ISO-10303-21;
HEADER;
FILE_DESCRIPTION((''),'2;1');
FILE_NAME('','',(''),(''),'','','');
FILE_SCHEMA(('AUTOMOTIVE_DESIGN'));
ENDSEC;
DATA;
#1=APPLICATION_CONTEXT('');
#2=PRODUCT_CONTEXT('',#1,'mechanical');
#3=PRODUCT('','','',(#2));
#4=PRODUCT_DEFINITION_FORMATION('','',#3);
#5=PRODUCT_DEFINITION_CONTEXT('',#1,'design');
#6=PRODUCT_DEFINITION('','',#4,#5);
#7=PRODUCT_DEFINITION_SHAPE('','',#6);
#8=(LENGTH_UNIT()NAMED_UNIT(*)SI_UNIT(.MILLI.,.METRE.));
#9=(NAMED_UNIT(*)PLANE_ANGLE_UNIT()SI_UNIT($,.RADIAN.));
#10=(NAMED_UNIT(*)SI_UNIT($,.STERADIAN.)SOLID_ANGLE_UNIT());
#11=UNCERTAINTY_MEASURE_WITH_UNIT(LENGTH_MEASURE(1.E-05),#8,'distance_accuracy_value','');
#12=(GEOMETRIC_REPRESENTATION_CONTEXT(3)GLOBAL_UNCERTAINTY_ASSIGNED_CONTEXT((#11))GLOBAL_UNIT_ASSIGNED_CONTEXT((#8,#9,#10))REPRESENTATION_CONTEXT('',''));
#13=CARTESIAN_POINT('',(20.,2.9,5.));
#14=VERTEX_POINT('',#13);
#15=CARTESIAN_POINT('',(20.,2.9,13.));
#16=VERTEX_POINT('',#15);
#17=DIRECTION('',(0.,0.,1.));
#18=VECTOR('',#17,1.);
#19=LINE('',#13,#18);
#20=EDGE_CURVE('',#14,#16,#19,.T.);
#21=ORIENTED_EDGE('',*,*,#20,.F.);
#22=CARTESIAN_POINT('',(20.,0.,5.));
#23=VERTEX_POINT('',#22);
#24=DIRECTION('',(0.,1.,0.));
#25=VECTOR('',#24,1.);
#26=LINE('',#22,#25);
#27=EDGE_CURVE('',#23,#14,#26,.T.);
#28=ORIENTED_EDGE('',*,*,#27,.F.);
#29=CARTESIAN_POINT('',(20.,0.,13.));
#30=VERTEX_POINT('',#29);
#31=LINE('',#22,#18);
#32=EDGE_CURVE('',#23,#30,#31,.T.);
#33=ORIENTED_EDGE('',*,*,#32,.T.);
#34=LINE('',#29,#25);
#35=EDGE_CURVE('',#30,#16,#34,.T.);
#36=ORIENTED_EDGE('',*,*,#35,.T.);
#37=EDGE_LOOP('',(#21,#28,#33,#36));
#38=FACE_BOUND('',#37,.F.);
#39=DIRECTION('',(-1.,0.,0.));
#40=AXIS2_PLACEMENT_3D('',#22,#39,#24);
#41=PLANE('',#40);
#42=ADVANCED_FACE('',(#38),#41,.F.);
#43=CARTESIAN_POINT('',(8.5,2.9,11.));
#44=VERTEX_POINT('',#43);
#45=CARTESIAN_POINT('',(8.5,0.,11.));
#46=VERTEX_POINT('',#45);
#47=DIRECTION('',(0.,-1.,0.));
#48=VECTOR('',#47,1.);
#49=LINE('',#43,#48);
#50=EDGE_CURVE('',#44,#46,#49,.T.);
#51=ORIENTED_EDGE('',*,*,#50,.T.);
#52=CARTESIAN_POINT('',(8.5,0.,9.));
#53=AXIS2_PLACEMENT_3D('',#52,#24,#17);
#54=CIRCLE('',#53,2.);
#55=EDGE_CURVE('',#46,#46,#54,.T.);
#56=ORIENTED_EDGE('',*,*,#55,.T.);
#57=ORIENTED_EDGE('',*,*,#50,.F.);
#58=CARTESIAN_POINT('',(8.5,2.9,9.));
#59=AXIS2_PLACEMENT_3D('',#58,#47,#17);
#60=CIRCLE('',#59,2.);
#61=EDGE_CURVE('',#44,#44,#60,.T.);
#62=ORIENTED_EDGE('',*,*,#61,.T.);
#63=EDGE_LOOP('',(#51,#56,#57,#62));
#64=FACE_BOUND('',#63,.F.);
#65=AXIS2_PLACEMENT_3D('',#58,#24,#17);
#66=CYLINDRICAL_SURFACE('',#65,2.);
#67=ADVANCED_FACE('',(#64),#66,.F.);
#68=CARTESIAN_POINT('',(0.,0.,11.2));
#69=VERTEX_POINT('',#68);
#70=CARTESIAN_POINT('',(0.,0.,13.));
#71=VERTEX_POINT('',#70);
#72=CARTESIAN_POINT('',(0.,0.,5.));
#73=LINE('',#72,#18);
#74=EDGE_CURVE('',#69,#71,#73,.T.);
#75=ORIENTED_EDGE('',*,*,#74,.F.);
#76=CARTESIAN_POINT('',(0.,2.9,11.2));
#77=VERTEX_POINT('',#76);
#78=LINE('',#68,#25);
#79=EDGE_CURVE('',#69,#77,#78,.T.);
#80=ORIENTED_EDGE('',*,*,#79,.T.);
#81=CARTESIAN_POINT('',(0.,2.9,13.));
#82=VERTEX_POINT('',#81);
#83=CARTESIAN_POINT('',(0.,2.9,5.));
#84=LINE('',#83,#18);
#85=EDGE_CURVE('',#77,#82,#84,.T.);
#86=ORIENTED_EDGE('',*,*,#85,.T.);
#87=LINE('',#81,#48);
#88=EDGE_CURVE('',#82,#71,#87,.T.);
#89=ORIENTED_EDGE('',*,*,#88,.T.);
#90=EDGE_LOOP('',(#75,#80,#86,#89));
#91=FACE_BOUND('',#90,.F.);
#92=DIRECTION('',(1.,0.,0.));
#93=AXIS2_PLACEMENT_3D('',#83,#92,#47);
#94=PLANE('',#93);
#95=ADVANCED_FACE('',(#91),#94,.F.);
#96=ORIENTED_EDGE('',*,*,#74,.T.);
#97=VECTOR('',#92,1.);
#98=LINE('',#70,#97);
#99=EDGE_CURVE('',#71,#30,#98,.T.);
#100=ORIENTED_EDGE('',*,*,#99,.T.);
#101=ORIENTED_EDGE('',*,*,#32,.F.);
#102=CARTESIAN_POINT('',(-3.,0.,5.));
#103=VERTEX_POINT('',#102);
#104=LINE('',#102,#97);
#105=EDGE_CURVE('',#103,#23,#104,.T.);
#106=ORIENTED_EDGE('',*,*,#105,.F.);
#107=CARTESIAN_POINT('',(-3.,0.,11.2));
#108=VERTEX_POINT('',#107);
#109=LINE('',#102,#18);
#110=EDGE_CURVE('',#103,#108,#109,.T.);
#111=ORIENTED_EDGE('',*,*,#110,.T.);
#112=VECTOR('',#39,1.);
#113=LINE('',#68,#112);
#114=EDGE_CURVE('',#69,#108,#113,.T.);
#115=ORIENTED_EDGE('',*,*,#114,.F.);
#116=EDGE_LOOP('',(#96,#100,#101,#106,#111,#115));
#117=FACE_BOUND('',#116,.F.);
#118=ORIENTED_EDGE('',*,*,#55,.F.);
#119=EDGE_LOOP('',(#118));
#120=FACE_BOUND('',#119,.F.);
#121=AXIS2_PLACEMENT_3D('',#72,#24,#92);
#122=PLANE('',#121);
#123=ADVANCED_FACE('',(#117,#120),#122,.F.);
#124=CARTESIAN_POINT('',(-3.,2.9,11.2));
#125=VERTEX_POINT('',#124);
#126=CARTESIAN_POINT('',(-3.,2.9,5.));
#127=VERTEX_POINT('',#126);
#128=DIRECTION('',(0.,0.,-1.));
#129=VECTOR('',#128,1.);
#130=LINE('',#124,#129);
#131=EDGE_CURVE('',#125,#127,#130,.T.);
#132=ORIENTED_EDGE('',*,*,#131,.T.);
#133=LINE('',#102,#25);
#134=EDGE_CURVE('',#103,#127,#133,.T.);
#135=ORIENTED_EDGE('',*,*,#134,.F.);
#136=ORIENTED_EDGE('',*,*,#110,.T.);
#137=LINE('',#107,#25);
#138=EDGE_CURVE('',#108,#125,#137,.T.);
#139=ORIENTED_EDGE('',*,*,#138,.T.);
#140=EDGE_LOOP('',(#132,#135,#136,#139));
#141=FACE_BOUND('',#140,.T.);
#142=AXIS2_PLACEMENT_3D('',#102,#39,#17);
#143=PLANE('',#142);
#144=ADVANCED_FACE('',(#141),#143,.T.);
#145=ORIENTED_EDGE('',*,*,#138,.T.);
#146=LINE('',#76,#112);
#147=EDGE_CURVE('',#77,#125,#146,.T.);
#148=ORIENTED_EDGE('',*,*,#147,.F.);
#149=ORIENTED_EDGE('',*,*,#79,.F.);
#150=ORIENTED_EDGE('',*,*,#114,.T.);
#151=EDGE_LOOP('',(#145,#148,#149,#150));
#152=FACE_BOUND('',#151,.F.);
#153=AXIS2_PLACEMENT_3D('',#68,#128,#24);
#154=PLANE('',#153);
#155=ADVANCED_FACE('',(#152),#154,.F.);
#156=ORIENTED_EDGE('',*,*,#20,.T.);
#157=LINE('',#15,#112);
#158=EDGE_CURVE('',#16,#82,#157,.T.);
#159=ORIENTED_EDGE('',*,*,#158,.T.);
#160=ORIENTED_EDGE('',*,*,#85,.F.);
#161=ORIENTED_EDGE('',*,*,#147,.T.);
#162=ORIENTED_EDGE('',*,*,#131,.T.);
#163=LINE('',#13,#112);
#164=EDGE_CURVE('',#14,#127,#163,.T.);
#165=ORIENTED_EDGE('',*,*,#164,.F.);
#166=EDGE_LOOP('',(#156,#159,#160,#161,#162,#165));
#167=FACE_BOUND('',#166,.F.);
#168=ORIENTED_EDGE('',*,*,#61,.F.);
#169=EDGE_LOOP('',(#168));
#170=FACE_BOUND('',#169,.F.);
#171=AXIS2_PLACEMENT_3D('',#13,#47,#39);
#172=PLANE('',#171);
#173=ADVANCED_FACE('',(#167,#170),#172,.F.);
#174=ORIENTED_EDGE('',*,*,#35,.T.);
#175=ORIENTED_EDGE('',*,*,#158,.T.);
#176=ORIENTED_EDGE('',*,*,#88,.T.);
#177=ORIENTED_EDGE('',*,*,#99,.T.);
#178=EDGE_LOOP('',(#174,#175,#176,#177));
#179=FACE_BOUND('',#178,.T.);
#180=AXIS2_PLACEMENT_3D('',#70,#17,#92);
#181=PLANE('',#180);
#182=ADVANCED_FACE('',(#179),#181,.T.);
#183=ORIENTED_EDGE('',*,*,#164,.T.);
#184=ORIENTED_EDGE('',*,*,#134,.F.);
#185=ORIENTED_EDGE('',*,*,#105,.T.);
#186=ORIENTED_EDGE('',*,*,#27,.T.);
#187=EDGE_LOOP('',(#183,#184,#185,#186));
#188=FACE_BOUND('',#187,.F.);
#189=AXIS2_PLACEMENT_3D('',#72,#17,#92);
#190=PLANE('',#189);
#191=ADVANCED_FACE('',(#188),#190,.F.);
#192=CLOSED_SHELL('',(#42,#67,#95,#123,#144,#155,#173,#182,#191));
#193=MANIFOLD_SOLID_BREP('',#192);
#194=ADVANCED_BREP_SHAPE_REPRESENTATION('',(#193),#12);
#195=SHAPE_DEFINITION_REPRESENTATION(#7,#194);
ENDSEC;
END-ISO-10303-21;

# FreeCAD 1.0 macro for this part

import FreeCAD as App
import Part
import Sketcher

V = App.Vector

doc = App.newDocument("Part")
body = doc.addObject("PartDesign::Body", "Body")

sketch1 = body.newObject("Sketcher::SketchObject", "Sketch")
sketch1.AttachmentSupport = (doc.getObject("XY_Plane"), [""])
sketch1.MapMode = "FlatFace"
sketch1.AttachmentOffset = App.Placement(V(0, 0, 5), App.Rotation())
sketch1.addGeometry(Part.LineSegment(V(0, 2.9, 0), V(0, 0, 0)), False)
sketch1.addGeometry(Part.LineSegment(V(0, 0, 0), V(20, 0, 0)), False)
sketch1.addGeometry(Part.LineSegment(V(20, 0, 0), V(20, 2.9, 0)), False)
sketch1.addGeometry(Part.LineSegment(V(20, 2.9, 0), V(0, 2.9, 0)), False)
sketch1.addConstraint(Sketcher.Constraint("Coincident", 0, 2, 1, 1))
sketch1.addConstraint(Sketcher.Constraint("Coincident", 1, 2, 2, 1))
sketch1.addConstraint(Sketcher.Constraint("Coincident", 2, 2, 3, 1))
sketch1.addConstraint(Sketcher.Constraint("Coincident", 3, 2, 0, 1))
sketch1.addConstraint(Sketcher.Constraint("Vertical", 0))
sketch1.addConstraint(Sketcher.Constraint("Horizontal", 1))
sketch1.addConstraint(Sketcher.Constraint("Vertical", 2))
sketch1.addConstraint(Sketcher.Constraint("Horizontal", 3))
sketch1.addConstraint(Sketcher.Constraint("Coincident", 0, 2, -1, 1))
sketch1.addConstraint(Sketcher.Constraint("DistanceX", 1, 1, 1, 2, 20.0))
sketch1.addConstraint(Sketcher.Constraint("DistanceY", 0, 2, 0, 1, 2.9))
pad1 = body.newObject("PartDesign::Pad", "Pad")
pad1.Profile = sketch1
pad1.Length = 8

sketch2 = body.newObject("Sketcher::SketchObject", "Sketch001")
sketch2.AttachmentSupport = (doc.getObject("YZ_Plane"), [""])
sketch2.MapMode = "FlatFace"
sketch2.addGeometry(Part.LineSegment(V(2.9, 5, 0), V(0, 5, 0)), False)
sketch2.addGeometry(Part.LineSegment(V(0, 5, 0), V(0, 11.2, 0)), False)
sketch2.addGeometry(Part.LineSegment(V(0, 11.2, 0), V(2.9, 11.2, 0)), False)
sketch2.addGeometry(Part.LineSegment(V(2.9, 11.2, 0), V(2.9, 5, 0)), False)
sketch2.addConstraint(Sketcher.Constraint("Coincident", 0, 2, 1, 1))
sketch2.addConstraint(Sketcher.Constraint("Coincident", 1, 2, 2, 1))
sketch2.addConstraint(Sketcher.Constraint("Coincident", 2, 2, 3, 1))
sketch2.addConstraint(Sketcher.Constraint("Coincident", 3, 2, 0, 1))
sketch2.addConstraint(Sketcher.Constraint("Horizontal", 0))
sketch2.addConstraint(Sketcher.Constraint("Vertical", 1))
sketch2.addConstraint(Sketcher.Constraint("Horizontal", 2))
sketch2.addConstraint(Sketcher.Constraint("Vertical", 3))
sketch2.addConstraint(Sketcher.Constraint("PointOnObject", 0, 2, -2))
sketch2.addConstraint(Sketcher.Constraint("DistanceY", 1, 1, 1, 2, 6.2))
sketch2.addConstraint(Sketcher.Constraint("DistanceX", 0, 2, 0, 1, 2.9))
sketch2.addConstraint(Sketcher.Constraint("DistanceY", -1, 1, 0, 2, 5.0))
pad2 = body.newObject("PartDesign::Pad", "Pad001")
pad2.Profile = sketch2
pad2.Length = 3
pad2.Reversed = True

sketch3 = body.newObject("Sketcher::SketchObject", "Sketch002")
sketch3.AttachmentSupport = (doc.getObject("XZ_Plane"), [""])
sketch3.MapMode = "FlatFace"
sketch3.AttachmentOffset = App.Placement(V(0, 0, -2.9), App.Rotation())
sketch3.addGeometry(Part.Circle(V(8.5, 9, 0), V(0, 0, 1), 2), False)
sketch3.addConstraint(Sketcher.Constraint("Diameter", 0, 4.0))
sketch3.addConstraint(Sketcher.Constraint("DistanceX", -1, 1, 0, 3, 8.5))
sketch3.addConstraint(Sketcher.Constraint("DistanceY", -1, 1, 0, 3, 9.0))
pocket1 = body.newObject("PartDesign::Pocket", "Pocket")
pocket1.Profile = sketch3
pocket1.Type = "ThroughAll"
pocket1.Reversed = True

doc.recompute()
